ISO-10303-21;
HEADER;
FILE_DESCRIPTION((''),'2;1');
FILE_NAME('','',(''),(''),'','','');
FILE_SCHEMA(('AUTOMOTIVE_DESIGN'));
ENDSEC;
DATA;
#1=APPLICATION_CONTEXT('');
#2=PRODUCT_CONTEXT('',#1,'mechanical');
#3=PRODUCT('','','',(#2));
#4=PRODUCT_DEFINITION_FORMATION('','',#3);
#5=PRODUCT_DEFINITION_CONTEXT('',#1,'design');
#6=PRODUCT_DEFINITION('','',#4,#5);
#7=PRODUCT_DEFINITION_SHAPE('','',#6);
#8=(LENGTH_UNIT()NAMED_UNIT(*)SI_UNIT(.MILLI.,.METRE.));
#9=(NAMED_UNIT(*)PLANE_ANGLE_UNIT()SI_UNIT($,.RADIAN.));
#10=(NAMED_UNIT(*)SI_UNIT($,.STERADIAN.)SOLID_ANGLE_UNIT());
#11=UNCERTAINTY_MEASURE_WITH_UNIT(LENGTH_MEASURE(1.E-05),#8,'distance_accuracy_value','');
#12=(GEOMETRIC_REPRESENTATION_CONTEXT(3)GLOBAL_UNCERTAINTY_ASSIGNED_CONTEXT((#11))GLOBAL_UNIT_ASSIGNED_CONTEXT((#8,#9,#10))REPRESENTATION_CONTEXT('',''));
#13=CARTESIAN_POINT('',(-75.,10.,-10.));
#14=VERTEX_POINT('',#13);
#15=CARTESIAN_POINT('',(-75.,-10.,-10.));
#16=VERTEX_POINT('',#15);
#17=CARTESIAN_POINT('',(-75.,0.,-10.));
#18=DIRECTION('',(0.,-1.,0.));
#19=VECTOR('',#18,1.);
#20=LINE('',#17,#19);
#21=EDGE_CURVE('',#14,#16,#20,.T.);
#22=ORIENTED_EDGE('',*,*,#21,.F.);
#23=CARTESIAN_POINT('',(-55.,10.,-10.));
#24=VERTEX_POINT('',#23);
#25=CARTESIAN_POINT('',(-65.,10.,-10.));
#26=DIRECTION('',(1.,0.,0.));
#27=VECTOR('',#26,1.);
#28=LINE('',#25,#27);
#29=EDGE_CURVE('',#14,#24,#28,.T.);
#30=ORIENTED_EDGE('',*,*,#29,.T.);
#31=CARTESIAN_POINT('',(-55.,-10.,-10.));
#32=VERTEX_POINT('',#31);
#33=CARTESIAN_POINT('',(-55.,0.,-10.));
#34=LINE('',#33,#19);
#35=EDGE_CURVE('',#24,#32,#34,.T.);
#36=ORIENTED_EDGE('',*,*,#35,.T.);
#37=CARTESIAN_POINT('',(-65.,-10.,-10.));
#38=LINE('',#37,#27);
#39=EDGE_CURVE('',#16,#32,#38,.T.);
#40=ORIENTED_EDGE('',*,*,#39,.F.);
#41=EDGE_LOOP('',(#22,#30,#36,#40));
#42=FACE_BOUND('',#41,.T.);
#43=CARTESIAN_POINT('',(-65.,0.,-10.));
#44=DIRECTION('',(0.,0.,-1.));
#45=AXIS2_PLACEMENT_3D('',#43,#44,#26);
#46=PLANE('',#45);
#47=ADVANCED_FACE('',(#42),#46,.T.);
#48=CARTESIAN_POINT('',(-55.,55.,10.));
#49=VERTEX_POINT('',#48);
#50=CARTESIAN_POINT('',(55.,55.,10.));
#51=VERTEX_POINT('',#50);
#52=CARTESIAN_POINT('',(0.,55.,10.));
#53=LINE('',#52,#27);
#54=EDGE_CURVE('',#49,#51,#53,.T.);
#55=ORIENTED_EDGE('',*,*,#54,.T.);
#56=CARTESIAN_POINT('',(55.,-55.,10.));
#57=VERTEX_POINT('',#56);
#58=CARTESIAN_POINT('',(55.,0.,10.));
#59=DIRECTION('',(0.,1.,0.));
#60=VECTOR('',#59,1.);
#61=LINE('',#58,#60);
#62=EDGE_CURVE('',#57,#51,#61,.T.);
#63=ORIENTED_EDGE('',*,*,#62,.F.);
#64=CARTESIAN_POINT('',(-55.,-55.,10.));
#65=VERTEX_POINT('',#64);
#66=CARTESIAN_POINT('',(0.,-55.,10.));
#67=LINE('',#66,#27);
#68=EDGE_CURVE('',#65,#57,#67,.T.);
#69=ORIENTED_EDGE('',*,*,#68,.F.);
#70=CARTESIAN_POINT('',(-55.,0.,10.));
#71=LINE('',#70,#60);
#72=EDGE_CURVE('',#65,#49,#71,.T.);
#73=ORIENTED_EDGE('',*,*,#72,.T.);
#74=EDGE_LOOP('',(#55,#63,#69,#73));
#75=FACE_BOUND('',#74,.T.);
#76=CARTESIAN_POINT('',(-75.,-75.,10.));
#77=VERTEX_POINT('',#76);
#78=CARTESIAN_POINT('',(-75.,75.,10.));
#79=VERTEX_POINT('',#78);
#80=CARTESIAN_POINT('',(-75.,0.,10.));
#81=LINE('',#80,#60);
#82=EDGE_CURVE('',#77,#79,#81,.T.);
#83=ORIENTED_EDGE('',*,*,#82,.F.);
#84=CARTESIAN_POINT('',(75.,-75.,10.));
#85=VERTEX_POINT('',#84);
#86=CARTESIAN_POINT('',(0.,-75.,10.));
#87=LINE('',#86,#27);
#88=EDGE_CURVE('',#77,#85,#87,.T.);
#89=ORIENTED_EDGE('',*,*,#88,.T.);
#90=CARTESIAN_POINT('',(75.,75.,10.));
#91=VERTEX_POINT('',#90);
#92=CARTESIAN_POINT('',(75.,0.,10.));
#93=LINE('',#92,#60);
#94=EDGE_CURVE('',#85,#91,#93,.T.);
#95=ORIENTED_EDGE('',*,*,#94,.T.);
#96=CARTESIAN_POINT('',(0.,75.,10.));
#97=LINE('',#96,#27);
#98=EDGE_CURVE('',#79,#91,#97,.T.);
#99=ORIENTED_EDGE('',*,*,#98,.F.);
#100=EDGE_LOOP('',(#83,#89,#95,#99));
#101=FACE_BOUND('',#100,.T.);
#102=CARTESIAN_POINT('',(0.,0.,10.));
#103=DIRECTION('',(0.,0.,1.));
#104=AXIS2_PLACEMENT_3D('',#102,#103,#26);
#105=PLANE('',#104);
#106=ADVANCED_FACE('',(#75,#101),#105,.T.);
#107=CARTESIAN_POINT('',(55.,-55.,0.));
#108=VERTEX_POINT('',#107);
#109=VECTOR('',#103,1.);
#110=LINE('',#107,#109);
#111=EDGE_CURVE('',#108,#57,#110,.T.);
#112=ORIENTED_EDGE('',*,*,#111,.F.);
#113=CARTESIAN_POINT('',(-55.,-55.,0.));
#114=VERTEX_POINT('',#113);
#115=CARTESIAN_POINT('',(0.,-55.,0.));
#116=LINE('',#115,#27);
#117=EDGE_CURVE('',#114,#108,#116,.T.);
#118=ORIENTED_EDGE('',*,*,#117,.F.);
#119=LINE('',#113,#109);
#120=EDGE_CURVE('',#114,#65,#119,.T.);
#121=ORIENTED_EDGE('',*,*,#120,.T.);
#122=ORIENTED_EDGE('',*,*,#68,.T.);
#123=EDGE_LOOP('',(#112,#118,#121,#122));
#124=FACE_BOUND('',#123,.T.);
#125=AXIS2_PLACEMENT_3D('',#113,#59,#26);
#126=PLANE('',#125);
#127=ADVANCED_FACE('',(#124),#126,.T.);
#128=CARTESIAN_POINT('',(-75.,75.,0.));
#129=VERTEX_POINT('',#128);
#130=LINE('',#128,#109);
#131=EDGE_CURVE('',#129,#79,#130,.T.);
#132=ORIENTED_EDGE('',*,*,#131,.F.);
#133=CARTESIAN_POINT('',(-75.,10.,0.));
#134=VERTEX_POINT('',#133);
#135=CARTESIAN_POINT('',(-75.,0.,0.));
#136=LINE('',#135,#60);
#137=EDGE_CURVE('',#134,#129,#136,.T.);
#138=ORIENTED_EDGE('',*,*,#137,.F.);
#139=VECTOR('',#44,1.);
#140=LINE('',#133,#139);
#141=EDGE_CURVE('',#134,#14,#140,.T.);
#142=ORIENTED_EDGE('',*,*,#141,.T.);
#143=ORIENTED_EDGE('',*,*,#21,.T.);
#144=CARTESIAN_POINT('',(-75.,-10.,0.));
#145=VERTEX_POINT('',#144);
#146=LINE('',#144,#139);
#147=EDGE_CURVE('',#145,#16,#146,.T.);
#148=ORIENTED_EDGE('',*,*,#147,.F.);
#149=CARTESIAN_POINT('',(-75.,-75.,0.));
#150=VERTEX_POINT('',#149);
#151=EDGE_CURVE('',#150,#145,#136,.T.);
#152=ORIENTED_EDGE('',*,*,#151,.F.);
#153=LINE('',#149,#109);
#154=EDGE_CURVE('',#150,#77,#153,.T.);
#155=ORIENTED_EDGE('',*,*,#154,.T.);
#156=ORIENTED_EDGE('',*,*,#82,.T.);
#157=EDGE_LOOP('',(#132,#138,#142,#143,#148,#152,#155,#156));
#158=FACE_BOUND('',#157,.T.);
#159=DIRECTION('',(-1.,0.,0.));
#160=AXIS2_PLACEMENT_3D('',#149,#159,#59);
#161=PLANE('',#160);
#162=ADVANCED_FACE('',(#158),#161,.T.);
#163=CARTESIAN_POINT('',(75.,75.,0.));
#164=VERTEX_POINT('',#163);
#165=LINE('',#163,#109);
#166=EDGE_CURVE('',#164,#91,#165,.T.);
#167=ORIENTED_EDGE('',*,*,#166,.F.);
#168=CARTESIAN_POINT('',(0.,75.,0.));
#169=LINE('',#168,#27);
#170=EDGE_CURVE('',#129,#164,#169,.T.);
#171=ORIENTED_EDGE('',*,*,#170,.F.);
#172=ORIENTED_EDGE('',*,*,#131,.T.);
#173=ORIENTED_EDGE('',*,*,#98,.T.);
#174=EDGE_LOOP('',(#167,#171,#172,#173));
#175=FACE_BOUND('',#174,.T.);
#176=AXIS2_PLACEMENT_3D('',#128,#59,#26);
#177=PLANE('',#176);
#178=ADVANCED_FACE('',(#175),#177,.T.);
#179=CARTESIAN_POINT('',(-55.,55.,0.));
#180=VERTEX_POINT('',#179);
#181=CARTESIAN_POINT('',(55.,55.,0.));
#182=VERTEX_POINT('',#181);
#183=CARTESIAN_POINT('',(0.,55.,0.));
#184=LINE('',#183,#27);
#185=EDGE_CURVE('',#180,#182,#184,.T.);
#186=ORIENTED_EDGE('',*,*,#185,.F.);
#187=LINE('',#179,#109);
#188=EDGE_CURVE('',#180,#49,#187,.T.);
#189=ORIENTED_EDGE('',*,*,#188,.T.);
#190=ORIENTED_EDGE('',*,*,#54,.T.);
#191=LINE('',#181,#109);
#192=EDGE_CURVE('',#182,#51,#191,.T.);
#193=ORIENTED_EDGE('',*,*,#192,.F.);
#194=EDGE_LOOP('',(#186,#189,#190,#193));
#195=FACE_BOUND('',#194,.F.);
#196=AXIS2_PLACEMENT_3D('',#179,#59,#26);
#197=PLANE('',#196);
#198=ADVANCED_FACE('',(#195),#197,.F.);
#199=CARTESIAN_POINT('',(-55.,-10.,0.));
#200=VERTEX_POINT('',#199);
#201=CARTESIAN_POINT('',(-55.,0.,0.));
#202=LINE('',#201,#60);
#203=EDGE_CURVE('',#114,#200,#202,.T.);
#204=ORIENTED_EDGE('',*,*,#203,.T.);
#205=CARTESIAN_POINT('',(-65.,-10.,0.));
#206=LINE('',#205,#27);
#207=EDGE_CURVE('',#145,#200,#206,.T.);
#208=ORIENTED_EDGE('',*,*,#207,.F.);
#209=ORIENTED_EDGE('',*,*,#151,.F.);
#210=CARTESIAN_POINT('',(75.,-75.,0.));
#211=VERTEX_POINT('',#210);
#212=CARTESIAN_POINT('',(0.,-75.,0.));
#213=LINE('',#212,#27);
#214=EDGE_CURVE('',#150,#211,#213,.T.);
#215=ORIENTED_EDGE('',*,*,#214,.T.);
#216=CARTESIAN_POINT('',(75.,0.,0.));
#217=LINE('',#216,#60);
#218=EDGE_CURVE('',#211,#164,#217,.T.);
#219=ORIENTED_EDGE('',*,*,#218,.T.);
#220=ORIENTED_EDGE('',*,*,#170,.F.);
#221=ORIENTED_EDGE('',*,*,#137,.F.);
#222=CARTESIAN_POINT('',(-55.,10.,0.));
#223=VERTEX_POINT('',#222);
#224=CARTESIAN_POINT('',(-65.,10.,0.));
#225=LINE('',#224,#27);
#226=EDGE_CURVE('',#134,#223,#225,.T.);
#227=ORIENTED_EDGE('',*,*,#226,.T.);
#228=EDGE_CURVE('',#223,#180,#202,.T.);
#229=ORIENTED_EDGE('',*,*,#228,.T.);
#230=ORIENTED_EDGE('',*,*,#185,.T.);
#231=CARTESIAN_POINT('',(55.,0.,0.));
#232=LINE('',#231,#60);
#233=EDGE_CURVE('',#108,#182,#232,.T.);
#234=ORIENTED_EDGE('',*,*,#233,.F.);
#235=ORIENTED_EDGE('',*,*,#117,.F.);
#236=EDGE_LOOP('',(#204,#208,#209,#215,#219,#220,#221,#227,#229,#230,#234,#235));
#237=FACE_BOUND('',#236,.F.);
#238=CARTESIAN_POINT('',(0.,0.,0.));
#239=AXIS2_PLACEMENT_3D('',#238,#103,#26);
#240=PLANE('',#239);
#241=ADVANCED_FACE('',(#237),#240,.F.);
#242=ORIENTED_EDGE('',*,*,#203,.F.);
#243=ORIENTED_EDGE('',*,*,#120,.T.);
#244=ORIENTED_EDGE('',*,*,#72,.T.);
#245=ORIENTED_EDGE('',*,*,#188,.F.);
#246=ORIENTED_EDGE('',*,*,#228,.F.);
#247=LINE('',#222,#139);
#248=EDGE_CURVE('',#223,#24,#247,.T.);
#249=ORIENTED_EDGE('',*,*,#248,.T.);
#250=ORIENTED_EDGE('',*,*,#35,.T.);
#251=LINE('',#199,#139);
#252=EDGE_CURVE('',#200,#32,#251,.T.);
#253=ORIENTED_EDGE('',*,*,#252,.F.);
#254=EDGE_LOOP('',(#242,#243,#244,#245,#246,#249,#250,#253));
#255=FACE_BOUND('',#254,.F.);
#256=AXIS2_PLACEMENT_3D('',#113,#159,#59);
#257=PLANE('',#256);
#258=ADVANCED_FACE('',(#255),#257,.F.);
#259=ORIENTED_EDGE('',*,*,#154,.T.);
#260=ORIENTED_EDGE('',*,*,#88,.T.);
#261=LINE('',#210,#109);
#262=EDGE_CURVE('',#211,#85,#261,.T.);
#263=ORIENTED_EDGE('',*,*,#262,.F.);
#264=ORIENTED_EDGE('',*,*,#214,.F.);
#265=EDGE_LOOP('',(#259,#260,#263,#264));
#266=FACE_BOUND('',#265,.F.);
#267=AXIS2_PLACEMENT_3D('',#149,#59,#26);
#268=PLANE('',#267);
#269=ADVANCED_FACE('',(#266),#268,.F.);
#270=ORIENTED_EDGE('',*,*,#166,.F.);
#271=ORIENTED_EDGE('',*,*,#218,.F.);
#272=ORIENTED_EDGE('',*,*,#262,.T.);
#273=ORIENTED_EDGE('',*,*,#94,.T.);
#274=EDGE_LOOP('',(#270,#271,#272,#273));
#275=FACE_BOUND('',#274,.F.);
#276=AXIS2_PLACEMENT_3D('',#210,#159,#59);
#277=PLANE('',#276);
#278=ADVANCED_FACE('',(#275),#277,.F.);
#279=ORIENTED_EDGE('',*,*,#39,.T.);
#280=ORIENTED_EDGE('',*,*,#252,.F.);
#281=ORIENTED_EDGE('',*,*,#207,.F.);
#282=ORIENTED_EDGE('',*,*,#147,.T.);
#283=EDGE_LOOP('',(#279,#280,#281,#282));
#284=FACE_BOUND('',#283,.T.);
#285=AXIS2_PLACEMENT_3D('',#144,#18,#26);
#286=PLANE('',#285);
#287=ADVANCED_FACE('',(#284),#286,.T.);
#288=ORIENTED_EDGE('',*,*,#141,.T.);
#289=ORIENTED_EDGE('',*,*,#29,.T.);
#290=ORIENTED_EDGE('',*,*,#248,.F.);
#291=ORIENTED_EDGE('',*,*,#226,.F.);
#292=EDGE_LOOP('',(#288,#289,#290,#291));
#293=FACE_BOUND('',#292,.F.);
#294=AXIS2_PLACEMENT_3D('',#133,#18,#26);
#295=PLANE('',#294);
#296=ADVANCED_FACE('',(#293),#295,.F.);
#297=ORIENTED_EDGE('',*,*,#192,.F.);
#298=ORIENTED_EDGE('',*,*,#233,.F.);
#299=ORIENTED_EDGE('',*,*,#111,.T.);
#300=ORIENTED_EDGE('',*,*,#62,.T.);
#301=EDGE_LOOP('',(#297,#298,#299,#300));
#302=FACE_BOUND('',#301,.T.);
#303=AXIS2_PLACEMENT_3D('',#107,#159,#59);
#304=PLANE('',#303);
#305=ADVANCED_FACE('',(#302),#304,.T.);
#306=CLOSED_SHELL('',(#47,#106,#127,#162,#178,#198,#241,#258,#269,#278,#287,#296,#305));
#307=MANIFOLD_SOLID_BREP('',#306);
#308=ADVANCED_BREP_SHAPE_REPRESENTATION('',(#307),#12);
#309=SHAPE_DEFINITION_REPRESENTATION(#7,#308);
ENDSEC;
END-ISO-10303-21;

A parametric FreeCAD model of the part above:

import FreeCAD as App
import Part
import Sketcher

V = App.Vector

doc = App.newDocument("Part")
body = doc.addObject("PartDesign::Body", "Body")

# Sketch on XY plane
sketch1 = body.newObject("Sketcher::SketchObject", "Sketch")
sketch1.AttachmentSupport = (doc.getObject("XY_Plane"), [""])
sketch1.MapMode = "FlatFace"
sketch1.addGeometry(Part.LineSegment(V(-75, 75, 0), V(-75, -75, 0)), False)
sketch1.addGeometry(Part.LineSegment(V(-75, -75, 0), V(75, -75, 0)), False)
sketch1.addGeometry(Part.LineSegment(V(75, -75, 0), V(75, 75, 0)), False)
sketch1.addGeometry(Part.LineSegment(V(75, 75, 0), V(-75, 75, 0)), False)
sketch1.addGeometry(Part.LineSegment(V(55, -55, 0), V(-55, -55, 0)), False)
sketch1.addGeometry(Part.LineSegment(V(-55, -55, 0), V(-55, 55, 0)), False)
sketch1.addGeometry(Part.LineSegment(V(-55, 55, 0), V(55, 55, 0)), False)
sketch1.addGeometry(Part.LineSegment(V(55, 55, 0), V(55, -55, 0)), False)
sketch1.addConstraint(Sketcher.Constraint("Coincident", 0, 2, 1, 1))
sketch1.addConstraint(Sketcher.Constraint("Coincident", 1, 2, 2, 1))
sketch1.addConstraint(Sketcher.Constraint("Coincident", 2, 2, 3, 1))
sketch1.addConstraint(Sketcher.Constraint("Coincident", 3, 2, 0, 1))
sketch1.addConstraint(Sketcher.Constraint("Coincident", 4, 2, 5, 1))
sketch1.addConstraint(Sketcher.Constraint("Coincident", 5, 2, 6, 1))
sketch1.addConstraint(Sketcher.Constraint("Coincident", 6, 2, 7, 1))
sketch1.addConstraint(Sketcher.Constraint("Coincident", 7, 2, 4, 1))
sketch1.addConstraint(Sketcher.Constraint("Vertical", 0))
sketch1.addConstraint(Sketcher.Constraint("Horizontal", 1))
sketch1.addConstraint(Sketcher.Constraint("Vertical", 2))
sketch1.addConstraint(Sketcher.Constraint("Horizontal", 3))
sketch1.addConstraint(Sketcher.Constraint("Horizontal", 4))
sketch1.addConstraint(Sketcher.Constraint("Vertical", 5))
sketch1.addConstraint(Sketcher.Constraint("Horizontal", 6))
sketch1.addConstraint(Sketcher.Constraint("Vertical", 7))
sketch1.addConstraint(Sketcher.Constraint("Symmetric", 0, 2, 2, 2, -1, 1))
sketch1.addConstraint(Sketcher.Constraint("Symmetric", 4, 2, 6, 2, -1, 1))
sketch1.addConstraint(Sketcher.Constraint("Equal", 3, 0))
sketch1.addConstraint(Sketcher.Constraint("Equal", 6, 5))
sketch1.addConstraint(Sketcher.Constraint("DistanceX", 1, 1, 1, 2, 150.0))
sketch1.addConstraint(Sketcher.Constraint("DistanceX", 4, 2, 4, 1, 110.0))
pad1 = body.newObject("PartDesign::Pad", "Pad")
pad1.Profile = sketch1
pad1.Length = 10

# Sketch on XY plane
sketch2 = body.newObject("Sketcher::SketchObject", "Sketch001")
sketch2.AttachmentSupport = (doc.getObject("XY_Plane"), [""])
sketch2.MapMode = "FlatFace"
sketch2.addGeometry(Part.LineSegment(V(-75, -10, 0), V(-75, 10, 0)), False)
sketch2.addGeometry(Part.LineSegment(V(-75, 10, 0), V(-55, 10, 0)), False)
sketch2.addGeometry(Part.LineSegment(V(-55, 10, 0), V(-55, -10, 0)), False)
sketch2.addGeometry(Part.LineSegment(V(-55, -10, 0), V(-75, -10, 0)), False)
sketch2.addConstraint(Sketcher.Constraint("Coincident", 0, 2, 1, 1))
sketch2.addConstraint(Sketcher.Constraint("Coincident", 1, 2, 2, 1))
sketch2.addConstraint(Sketcher.Constraint("Coincident", 2, 2, 3, 1))
sketch2.addConstraint(Sketcher.Constraint("Coincident", 3, 2, 0, 1))
sketch2.addConstraint(Sketcher.Constraint("Vertical", 0))
sketch2.addConstraint(Sketcher.Constraint("Horizontal", 1))
sketch2.addConstraint(Sketcher.Constraint("Vertical", 2))
sketch2.addConstraint(Sketcher.Constraint("Horizontal", 3))
sketch2.addConstraint(Sketcher.Constraint("Equal", 3, 0))
sketch2.addConstraint(Sketcher.Constraint("DistanceX", 1, 1, 1, 2, 20.0))
sketch2.addConstraint(Sketcher.Constraint("DistanceX", 0, 2, -1, 1, 75.0))
sketch2.addConstraint(Sketcher.Constraint("DistanceY", -1, 1, 0, 2, 10.0))
pad2 = body.newObject("PartDesign::Pad", "Pad001")
pad2.Profile = sketch2
pad2.Length = 10
pad2.Reversed = True

doc.recompute()
